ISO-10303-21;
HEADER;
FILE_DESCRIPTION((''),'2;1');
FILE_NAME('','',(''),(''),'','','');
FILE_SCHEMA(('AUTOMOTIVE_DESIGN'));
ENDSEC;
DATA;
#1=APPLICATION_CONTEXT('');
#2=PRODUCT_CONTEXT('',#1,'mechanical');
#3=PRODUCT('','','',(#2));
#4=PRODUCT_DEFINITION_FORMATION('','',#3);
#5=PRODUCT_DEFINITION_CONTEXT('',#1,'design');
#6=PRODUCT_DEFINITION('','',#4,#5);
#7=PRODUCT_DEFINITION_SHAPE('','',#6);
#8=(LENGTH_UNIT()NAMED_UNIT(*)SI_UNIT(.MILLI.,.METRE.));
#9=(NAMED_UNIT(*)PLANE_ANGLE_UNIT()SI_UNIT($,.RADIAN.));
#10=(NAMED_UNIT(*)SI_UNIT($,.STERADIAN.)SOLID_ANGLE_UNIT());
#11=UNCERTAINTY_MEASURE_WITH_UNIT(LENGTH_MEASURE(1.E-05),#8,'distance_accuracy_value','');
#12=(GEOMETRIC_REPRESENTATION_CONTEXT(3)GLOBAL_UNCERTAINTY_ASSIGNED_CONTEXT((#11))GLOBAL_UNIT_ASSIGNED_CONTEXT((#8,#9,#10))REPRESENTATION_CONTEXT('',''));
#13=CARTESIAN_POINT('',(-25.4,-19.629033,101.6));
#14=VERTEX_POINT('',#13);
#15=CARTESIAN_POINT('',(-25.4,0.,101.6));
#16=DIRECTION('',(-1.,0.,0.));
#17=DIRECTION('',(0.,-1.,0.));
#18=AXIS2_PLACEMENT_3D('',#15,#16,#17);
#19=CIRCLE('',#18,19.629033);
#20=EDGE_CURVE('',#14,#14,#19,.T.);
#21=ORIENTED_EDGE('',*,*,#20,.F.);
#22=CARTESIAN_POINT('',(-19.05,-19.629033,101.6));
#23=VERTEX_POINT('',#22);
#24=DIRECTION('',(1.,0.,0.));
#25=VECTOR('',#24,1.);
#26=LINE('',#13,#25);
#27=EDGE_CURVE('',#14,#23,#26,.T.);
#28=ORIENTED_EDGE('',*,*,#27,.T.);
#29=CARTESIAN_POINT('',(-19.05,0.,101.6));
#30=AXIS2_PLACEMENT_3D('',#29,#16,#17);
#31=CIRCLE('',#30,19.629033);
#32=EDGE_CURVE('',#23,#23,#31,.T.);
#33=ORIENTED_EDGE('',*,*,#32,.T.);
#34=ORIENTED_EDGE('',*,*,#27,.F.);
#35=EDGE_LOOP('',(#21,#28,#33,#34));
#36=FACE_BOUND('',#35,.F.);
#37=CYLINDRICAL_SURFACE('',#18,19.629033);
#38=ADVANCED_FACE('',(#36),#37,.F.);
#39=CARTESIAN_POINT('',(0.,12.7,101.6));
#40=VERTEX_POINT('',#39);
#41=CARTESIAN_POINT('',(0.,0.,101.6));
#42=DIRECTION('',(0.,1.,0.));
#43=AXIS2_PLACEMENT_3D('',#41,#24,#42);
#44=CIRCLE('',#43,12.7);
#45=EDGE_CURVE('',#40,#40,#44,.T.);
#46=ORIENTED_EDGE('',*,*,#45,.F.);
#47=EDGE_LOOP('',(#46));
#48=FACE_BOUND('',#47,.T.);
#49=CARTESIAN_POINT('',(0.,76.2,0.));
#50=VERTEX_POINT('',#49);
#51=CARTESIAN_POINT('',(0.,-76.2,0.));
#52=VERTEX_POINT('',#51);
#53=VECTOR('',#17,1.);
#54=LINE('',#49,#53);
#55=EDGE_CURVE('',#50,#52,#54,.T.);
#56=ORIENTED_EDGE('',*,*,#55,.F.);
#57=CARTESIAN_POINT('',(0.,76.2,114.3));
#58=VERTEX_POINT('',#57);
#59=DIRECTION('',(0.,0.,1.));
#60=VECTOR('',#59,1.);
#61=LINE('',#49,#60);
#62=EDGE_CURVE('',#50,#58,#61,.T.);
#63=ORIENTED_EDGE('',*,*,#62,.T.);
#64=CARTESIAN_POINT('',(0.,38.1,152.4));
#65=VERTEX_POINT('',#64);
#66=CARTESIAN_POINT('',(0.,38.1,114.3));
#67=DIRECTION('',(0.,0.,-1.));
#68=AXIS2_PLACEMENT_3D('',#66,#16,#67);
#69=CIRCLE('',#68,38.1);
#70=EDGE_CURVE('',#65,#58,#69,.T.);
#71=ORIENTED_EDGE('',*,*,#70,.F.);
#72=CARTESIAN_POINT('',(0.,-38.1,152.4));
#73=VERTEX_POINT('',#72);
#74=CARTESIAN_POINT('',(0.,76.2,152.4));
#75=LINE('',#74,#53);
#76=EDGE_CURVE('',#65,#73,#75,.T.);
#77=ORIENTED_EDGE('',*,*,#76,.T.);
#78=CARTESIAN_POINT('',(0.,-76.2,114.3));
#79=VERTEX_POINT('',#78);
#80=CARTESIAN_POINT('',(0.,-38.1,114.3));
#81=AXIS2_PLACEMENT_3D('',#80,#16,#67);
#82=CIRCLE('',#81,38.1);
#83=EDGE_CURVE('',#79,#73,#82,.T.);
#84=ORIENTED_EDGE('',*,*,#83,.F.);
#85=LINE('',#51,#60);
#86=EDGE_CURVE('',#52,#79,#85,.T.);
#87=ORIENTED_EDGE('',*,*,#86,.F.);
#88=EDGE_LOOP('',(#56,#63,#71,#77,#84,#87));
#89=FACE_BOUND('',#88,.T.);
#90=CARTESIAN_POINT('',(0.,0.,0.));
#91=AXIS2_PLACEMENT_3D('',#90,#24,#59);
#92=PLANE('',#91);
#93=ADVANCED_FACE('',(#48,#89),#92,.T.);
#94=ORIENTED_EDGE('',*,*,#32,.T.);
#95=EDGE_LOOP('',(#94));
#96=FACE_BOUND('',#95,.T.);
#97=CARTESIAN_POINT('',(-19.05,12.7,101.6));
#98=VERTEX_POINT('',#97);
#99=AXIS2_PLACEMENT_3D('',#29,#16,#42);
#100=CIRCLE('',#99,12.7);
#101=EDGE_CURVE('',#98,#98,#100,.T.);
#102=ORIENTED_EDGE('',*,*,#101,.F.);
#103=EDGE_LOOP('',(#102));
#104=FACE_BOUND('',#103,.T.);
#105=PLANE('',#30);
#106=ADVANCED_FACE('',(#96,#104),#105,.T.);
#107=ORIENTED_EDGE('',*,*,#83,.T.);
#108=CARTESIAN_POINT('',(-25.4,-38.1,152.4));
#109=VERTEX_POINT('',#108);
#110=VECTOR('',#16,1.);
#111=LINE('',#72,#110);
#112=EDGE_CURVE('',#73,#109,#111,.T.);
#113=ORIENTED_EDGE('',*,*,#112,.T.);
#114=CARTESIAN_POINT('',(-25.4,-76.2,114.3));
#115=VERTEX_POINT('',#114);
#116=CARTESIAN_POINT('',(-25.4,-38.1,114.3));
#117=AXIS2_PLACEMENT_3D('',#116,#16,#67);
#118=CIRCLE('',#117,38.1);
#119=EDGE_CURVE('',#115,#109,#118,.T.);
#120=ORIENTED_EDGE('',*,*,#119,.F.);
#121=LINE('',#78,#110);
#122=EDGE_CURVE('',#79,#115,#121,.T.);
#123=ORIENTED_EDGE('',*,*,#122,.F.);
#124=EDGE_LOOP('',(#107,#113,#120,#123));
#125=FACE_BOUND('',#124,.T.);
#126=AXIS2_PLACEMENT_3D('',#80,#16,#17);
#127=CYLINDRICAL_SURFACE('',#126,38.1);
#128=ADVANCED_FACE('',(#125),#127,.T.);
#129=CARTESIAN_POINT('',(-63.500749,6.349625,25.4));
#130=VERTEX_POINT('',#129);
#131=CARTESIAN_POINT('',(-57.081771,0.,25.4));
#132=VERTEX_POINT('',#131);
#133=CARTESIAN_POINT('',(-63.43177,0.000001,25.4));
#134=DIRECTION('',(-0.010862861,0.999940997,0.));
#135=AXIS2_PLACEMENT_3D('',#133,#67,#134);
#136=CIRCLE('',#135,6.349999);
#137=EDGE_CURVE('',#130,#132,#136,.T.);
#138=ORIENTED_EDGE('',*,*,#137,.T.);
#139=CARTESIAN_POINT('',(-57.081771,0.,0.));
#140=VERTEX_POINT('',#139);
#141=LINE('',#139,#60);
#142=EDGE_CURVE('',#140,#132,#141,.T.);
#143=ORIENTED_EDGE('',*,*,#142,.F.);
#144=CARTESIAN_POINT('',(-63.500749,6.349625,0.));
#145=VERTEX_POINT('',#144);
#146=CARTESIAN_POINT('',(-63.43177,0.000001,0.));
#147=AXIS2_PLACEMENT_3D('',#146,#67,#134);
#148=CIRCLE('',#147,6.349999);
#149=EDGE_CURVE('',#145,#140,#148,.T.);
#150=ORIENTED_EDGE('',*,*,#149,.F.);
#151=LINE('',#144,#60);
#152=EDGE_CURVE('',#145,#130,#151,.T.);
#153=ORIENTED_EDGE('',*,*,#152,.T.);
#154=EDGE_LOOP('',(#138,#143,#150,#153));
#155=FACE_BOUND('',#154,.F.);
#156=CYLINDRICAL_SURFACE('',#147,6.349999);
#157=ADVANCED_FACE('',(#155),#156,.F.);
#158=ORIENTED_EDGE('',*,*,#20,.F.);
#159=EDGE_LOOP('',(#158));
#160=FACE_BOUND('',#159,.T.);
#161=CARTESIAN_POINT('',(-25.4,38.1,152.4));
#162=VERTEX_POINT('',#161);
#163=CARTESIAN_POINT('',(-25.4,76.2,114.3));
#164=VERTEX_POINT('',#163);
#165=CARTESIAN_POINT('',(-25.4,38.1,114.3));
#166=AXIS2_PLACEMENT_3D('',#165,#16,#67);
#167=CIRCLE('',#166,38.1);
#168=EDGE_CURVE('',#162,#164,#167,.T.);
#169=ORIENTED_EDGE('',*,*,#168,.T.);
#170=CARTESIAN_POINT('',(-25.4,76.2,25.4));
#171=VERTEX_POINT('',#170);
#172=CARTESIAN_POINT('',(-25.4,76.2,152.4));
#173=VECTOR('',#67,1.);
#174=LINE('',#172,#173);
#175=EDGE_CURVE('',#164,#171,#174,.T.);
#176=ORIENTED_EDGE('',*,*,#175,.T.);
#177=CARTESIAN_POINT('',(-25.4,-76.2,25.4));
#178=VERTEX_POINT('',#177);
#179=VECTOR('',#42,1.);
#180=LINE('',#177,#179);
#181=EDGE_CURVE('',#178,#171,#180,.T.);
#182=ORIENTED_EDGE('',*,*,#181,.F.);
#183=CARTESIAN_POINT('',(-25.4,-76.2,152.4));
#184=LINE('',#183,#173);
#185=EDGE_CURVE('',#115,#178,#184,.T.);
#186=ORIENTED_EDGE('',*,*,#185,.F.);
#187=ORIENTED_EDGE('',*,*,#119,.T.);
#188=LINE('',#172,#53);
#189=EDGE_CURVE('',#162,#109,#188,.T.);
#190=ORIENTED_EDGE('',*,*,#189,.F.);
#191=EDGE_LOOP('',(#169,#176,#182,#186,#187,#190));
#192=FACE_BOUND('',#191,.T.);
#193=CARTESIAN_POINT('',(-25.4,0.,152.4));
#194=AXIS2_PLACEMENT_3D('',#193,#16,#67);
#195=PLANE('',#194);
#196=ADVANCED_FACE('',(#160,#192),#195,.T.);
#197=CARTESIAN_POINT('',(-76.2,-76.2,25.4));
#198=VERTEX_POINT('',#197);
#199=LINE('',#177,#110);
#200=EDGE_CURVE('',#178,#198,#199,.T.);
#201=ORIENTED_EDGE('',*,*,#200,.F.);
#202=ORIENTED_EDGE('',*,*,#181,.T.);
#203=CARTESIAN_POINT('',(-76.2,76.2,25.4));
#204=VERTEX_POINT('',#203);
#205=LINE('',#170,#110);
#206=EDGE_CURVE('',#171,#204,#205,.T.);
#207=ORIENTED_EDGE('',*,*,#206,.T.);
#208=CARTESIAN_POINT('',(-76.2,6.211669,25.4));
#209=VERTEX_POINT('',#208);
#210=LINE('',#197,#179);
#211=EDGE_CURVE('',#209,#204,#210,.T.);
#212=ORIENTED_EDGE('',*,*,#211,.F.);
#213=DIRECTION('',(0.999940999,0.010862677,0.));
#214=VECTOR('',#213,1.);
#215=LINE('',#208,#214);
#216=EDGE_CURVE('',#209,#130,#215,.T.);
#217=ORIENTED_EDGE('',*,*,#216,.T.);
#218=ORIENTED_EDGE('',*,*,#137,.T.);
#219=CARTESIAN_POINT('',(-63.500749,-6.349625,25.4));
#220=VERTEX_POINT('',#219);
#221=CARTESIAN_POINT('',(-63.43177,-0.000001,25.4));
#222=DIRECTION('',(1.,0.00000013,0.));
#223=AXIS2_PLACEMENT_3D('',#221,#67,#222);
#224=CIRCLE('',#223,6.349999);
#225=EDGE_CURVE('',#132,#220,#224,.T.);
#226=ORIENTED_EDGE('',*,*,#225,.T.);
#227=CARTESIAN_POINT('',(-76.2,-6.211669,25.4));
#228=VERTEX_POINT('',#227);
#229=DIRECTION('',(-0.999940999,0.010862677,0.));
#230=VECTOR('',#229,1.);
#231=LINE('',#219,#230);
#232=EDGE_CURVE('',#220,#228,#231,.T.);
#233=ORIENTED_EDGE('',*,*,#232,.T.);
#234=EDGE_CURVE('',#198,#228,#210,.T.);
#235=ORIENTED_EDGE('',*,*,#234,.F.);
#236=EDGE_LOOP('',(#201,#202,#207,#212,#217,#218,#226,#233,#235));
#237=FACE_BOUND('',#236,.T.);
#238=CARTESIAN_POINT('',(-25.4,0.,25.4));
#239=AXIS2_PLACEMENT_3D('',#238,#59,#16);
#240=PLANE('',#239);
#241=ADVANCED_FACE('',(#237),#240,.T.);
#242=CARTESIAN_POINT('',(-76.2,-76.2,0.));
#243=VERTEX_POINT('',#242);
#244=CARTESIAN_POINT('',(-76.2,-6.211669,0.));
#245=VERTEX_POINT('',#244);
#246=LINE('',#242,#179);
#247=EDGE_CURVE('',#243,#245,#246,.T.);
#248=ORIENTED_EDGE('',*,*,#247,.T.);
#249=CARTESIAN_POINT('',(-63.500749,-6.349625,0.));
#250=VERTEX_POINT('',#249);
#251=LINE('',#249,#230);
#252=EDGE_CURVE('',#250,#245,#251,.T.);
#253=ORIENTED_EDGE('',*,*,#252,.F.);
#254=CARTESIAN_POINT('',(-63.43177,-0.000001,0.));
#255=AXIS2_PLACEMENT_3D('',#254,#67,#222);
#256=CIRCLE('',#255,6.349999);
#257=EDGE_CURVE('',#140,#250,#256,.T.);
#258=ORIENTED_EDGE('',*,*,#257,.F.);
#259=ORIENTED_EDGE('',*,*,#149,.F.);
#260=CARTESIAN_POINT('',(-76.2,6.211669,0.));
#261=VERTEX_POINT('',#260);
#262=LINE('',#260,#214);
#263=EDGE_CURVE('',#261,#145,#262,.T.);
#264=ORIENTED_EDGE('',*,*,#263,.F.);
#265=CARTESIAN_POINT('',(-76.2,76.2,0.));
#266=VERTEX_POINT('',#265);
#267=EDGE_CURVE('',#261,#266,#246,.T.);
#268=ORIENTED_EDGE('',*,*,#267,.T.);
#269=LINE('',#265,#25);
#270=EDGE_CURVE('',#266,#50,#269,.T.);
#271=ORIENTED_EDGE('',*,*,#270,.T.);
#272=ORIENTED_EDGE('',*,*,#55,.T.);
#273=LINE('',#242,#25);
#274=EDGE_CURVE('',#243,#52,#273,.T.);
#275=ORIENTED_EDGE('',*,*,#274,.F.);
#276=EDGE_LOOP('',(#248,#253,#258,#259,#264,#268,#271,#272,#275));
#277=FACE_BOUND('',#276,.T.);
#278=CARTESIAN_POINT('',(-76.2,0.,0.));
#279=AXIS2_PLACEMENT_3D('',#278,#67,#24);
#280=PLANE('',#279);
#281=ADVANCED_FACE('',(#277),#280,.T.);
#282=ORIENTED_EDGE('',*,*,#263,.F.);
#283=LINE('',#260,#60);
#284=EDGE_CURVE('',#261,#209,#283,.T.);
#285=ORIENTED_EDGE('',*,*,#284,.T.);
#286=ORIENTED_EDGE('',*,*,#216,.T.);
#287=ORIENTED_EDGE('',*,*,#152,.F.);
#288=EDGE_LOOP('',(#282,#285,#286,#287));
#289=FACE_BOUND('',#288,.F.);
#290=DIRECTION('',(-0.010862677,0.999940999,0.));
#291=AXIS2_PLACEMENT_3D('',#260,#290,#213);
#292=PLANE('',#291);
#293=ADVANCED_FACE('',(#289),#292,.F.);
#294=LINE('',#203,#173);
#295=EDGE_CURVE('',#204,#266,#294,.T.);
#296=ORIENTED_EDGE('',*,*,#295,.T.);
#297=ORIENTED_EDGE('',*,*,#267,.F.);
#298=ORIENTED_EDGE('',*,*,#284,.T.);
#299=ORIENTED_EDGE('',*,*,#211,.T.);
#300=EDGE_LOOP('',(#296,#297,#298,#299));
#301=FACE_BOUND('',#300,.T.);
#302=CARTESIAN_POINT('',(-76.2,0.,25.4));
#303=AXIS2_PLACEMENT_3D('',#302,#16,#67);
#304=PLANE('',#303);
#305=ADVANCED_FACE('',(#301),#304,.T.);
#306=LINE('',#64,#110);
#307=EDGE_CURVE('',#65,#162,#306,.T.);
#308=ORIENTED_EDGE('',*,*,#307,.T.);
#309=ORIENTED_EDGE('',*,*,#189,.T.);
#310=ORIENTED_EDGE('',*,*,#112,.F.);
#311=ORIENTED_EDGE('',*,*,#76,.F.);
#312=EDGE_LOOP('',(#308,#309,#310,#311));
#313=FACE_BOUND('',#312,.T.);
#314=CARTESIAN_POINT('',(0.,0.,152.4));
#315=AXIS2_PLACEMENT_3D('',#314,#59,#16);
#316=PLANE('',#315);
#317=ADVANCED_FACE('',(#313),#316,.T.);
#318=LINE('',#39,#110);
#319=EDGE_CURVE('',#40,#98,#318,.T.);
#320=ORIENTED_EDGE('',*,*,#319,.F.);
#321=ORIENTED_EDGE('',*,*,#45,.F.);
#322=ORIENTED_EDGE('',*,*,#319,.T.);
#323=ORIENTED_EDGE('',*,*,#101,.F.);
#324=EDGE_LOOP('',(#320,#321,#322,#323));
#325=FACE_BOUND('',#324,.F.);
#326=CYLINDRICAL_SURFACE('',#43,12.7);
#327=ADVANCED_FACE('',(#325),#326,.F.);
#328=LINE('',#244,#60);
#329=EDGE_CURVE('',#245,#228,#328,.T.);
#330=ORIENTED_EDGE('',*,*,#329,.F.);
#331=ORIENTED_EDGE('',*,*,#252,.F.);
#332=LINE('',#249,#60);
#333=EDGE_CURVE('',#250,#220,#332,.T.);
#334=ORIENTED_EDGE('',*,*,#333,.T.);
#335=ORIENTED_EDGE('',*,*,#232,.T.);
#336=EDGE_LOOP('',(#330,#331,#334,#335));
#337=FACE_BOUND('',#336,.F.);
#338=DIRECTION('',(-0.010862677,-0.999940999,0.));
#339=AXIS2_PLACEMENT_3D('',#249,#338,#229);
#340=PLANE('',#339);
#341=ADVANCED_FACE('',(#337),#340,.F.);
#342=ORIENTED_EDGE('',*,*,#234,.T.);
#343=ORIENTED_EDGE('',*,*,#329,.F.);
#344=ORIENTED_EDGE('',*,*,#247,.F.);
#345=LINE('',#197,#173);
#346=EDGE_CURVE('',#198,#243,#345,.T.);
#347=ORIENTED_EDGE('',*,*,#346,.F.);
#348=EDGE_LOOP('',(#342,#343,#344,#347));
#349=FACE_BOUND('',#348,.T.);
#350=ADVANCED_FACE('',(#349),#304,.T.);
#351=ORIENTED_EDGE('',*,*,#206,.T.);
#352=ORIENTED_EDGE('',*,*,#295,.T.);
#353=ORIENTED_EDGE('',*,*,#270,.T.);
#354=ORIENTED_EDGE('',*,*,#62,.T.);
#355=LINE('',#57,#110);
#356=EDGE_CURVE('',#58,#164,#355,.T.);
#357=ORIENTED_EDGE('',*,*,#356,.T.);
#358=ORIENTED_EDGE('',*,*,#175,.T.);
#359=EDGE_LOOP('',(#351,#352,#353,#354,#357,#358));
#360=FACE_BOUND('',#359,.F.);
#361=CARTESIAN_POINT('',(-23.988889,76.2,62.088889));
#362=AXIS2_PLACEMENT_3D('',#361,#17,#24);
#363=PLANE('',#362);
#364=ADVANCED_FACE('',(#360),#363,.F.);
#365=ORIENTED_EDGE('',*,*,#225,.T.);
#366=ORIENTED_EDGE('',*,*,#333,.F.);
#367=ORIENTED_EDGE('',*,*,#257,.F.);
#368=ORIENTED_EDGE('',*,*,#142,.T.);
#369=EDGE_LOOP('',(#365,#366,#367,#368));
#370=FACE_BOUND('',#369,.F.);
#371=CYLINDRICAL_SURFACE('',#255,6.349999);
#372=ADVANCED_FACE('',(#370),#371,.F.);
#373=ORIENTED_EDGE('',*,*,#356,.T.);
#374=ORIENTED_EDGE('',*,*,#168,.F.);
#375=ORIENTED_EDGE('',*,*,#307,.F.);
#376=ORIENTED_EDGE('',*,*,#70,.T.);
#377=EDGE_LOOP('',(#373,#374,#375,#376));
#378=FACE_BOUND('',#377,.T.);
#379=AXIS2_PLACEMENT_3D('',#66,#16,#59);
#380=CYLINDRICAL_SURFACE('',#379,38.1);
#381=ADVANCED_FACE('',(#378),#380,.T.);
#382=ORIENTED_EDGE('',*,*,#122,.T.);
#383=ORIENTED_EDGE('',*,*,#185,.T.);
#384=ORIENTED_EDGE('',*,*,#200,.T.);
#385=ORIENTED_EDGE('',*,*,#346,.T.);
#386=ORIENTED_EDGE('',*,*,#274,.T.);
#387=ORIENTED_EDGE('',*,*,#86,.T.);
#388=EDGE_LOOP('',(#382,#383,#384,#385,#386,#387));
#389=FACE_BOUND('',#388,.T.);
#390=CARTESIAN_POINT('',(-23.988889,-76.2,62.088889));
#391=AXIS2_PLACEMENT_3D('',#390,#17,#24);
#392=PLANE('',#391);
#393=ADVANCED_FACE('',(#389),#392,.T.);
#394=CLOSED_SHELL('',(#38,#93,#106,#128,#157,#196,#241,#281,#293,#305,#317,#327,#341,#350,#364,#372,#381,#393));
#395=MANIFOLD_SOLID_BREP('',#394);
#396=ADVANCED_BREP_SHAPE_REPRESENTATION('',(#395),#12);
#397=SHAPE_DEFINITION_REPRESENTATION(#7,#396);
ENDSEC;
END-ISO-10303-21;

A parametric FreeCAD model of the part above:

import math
import FreeCAD as App
import Part
import Sketcher

V = App.Vector
Q = App.Units.Quantity


def edges_at(feature, points):
    """Names of the edges that pass closest to the given points."""
    edges = feature.Shape.Edges
    near = lambda p: min(range(len(edges)), key=lambda i: edges[i].distToShape(Part.Vertex(*p))[0])
    return sorted({f"Edge{near(p) + 1}" for p in points})


def add_polygon(sketch, points):
    """Adds a closed chain of lines whose ends are joined by coincident constraints."""
    first, n = sketch.GeometryCount, len(points)
    for a, b in zip(points, points[1:] + points[:1]):
        sketch.addGeometry(Part.LineSegment(App.Vector(*a, 0), App.Vector(*b, 0)), False)
    for i in range(n):
        sketch.addConstraint(Sketcher.Constraint("Coincident", first + i, 2, first + (i + 1) % n, 1))

doc = App.newDocument("Part")
body = doc.addObject("PartDesign::Body", "Body")

# Sketch on XZ plane
sketch1 = doc.addObject("Sketcher::SketchObject", "Sketch")
body.addObject(sketch1)
sketch1.AttachmentSupport = (doc.XZ_Plane, [""])
sketch1.MapMode = "FlatFace"
add_polygon(sketch1, [(-76, 0), (0, 0), (0, 152), (-25, 152), (-25, 25), (-76, 25)])  # lines 0-5
sketch1.addConstraint(Sketcher.Constraint("Horizontal", 0))
sketch1.addConstraint(Sketcher.Constraint("Vertical", 1))
sketch1.addConstraint(Sketcher.Constraint("Horizontal", 2))
sketch1.addConstraint(Sketcher.Constraint("Vertical", 3))
sketch1.addConstraint(Sketcher.Constraint("Horizontal", 4))
sketch1.addConstraint(Sketcher.Constraint("Vertical", 5))
sketch1.addConstraint(Sketcher.Constraint("Coincident", 0, 2, -1, 1))
sketch1.addConstraint(Sketcher.Constraint("Equal", 2, 5))
sketch1.addConstraint(Sketcher.Constraint("DistanceX", 0, 1, 0, 2, Q("3 in")))
sketch1.addConstraint(Sketcher.Constraint("DistanceX", 2, 2, 2, 1, Q("1 in")))
sketch1.addConstraint(Sketcher.Constraint("DistanceY", 1, 1, 1, 2, Q("6 in")))
pad1 = doc.addObject("PartDesign::Pad", "Pad")
body.addObject(pad1)
pad1.Profile = sketch1
pad1.Length = Q("6 in")
pad1.Midplane = True

# Sketch on YZ plane
sketch2 = doc.addObject("Sketcher::SketchObject", "Sketch001")
body.addObject(sketch2)
sketch2.AttachmentSupport = (doc.YZ_Plane, [""])
sketch2.MapMode = "FlatFace"
sketch2.addGeometry(Part.Circle(V(0, 102, 0), V(0, 0, 1), 13), False)
sketch2.addConstraint(Sketcher.Constraint("PointOnObject", 0, 3, -2))
sketch2.addConstraint(Sketcher.Constraint("Diameter", 0, Q("1 in")))
sketch2.addConstraint(Sketcher.Constraint("DistanceY", -1, 1, 0, 3, Q("4 in")))
pocket1 = doc.addObject("PartDesign::Pocket", "Pocket")
body.addObject(pocket1)
pocket1.Profile = sketch2
pocket1.Length = Q("1 in")

# Sketch on XY plane
sketch3 = doc.addObject("Sketcher::SketchObject", "Sketch002")
body.addObject(sketch3)
sketch3.AttachmentSupport = (doc.XY_Plane, [""])
sketch3.MapMode = "FlatFace"
sketch3.addGeometry(Part.LineSegment(V(-64, -6, 0), V(-76, -6, 0)), False)
sketch3.addGeometry(Part.LineSegment(V(-76, -6, 0), V(-76, 6, 0)), False)
sketch3.addGeometry(Part.LineSegment(V(-76, 6, 0), V(-64, 6, 0)), False)
sketch3.addGeometry(Part.ArcOfCircle(Part.Circle(V(-63, 0, 0), V(0, 0, 1), 6), math.radians(0), math.radians(91)), False)
sketch3.addGeometry(Part.ArcOfCircle(Part.Circle(V(-63, 0, 0), V(0, 0, 1), 6), math.radians(-91), math.radians(0)), False)
sketch3.addConstraint(Sketcher.Constraint("Coincident", 0, 2, 1, 1))
sketch3.addConstraint(Sketcher.Constraint("Coincident", 1, 2, 2, 1))
sketch3.addConstraint(Sketcher.Constraint("Tangent", 2, 2, 3, 2))
sketch3.addConstraint(Sketcher.Constraint("Tangent", 3, 1, 4, 2))
sketch3.addConstraint(Sketcher.Constraint("Tangent", 4, 1, 0, 1))
sketch3.addConstraint(Sketcher.Constraint("Vertical", 1))
sketch3.addConstraint(Sketcher.Constraint("Equal", 3, 4))
sketch3.addConstraint(Sketcher.Constraint("Symmetric", 2, 2, 4, 1, -1))
sketch3.addConstraint(Sketcher.Constraint("PointOnObject", 3, 1, -1))
sketch3.addConstraint(Sketcher.Constraint("Radius", 3, Q("0.25 in")))
sketch3.addConstraint(Sketcher.Constraint("DistanceX", 0, 2, -1, 1, Q("3 in")))
sketch3.addConstraint(Sketcher.Constraint("Distance", 0, Q("0.5 in")))
sketch3.addConstraint(Sketcher.Constraint("DistanceY", 1, 1, 1, 2, 12.423338))
pocket2 = doc.addObject("PartDesign::Pocket", "Pocket001")
body.addObject(pocket2)
pocket2.Profile = sketch3
pocket2.Length = Q("1 in")
pocket2.Reversed = True
doc.recompute()

fillet = doc.addObject("PartDesign::Fillet", "Fillet")
body.addObject(fillet)
fillet.Base = (pocket2, edges_at(pocket2, [(-12.7, -76.2, 152.4)]))
fillet.Radius = Q("1.5 in")
doc.recompute()

fillet2 = doc.addObject("PartDesign::Fillet", "Fillet001")
body.addObject(fillet2)
fillet2.Base = (fillet, edges_at(fillet, [(-12.7, 76.2, 152.4)]))
fillet2.Radius = Q("1.5 in")

# Sketch on YZ plane
sketch4 = doc.addObject("Sketcher::SketchObject", "Sketch003")
body.addObject(sketch4)
sketch4.AttachmentSupport = (doc.YZ_Plane, [""])
sketch4.MapMode = "FlatFace"
sketch4.AttachmentOffset = App.Placement(V(0, 0, -1 * 25.4), App.Rotation())
sketch4.addGeometry(Part.Circle(V(0, 102, 0), V(0, 0, 1), 20), False)
sketch4.addGeometry(Part.Circle(V(0, 102, 0), V(0, 0, 1), 13), False)
sketch4.addConstraint(Sketcher.Constraint("Coincident", 1, 3, 0, 3))
sketch4.addConstraint(Sketcher.Constraint("PointOnObject", 0, 3, -2))
sketch4.addConstraint(Sketcher.Constraint("Diameter", 1, Q("1 in")))
sketch4.addConstraint(Sketcher.Constraint("DistanceY", -1, 1, 0, 3, Q("4 in")))
sketch4.addConstraint(Sketcher.Constraint("Diameter", 0, 39.258066))
pocket3 = doc.addObject("PartDesign::Pocket", "Pocket002")
body.addObject(pocket3)
pocket3.Profile = sketch4
pocket3.Length = Q("0.25 in")
pocket3.Reversed = True

doc.recompute()
